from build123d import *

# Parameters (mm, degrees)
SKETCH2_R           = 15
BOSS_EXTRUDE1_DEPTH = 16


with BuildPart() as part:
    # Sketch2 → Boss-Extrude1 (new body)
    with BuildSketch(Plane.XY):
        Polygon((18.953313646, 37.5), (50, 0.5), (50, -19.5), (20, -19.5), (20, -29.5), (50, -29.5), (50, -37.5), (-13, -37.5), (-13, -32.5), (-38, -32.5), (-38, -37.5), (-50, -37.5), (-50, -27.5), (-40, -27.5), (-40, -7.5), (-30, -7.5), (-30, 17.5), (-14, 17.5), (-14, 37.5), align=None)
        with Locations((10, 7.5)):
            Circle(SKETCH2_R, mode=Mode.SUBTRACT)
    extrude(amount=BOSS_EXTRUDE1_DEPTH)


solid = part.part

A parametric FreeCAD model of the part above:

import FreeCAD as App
import Part
import Sketcher
from FreeCAD import Vector
Q = App.Units.Quantity


def add_polygon(sketch, points):
    """Adds a closed chain of lines whose ends are joined by coincident constraints."""
    first, n = sketch.GeometryCount, len(points)
    for a, b in zip(points, points[1:] + points[:1]):
        sketch.addGeometry(Part.LineSegment(App.Vector(*a, 0), App.Vector(*b, 0)), False)
    for i in range(n):
        sketch.addConstraint(Sketcher.Constraint("Coincident", first + i, 2, first + (i + 1) % n, 1))

doc = App.newDocument("Part")
body = doc.addObject("PartDesign::Body", "Body")

sketch1 = body.newObject("Sketcher::SketchObject", "Sketch")
sketch1.AttachmentSupport = (doc.getObject("XY_Plane"), [""])
sketch1.MapMode = "FlatFace"
add_polygon(sketch1, [(50, 0), (19, 38), (-14, 38), (-14, 18), (-30, 18), (-30, -8), (-40, -8), (-40, -28), (-50, -28), (-50, -38), (-38, -38), (-38, -32), (-13, -32), (-13, -38), (50, -38), (50, -30), (20, -30), (20, -20), (50, -20)])
sketch1.addGeometry(Part.Circle(Vector(10, 8, 0), Vector(0, 0, 1), 15), False)
sketch1.addConstraint([
    Sketcher.Constraint("Horizontal", 1),
    Sketcher.Constraint("Vertical", 2),
    Sketcher.Constraint("Horizontal", 3),
    Sketcher.Constraint("Vertical", 4),
    Sketcher.Constraint("Horizontal", 5),
    Sketcher.Constraint("Vertical", 6),
    Sketcher.Constraint("Horizontal", 7),
    Sketcher.Constraint("Vertical", 8),
    Sketcher.Constraint("Horizontal", 9),
    Sketcher.Constraint("Vertical", 10),
    Sketcher.Constraint("Horizontal", 11),
    Sketcher.Constraint("Vertical", 12),
    Sketcher.Constraint("Horizontal", 13),
    Sketcher.Constraint("Vertical", 14),
    Sketcher.Constraint("Horizontal", 15),
    Sketcher.Constraint("Vertical", 16),
    Sketcher.Constraint("Horizontal", 17),
    Sketcher.Constraint("Vertical", 18),
    Sketcher.Constraint("Symmetric", 8, 2, 13, 2, -2),
    Sketcher.Constraint("Vertical", 14, 2, 17, 2),
    Sketcher.Constraint("Equal", 5, 7),
    Sketcher.Constraint("Equal", 11, 4),
    Sketcher.Constraint("Equal", 2, 6),
    Sketcher.Constraint("Equal", 7, 8),
    Sketcher.Constraint("Equal", 8, 16),
    Sketcher.Constraint("Equal", 6, 18),
    Sketcher.Constraint("Diameter", 19, Q("30 mm")),
    Sketcher.Constraint("DistanceX", 3, 2, 3, 1, Q("16 mm")),
    Sketcher.Constraint("DistanceX", 5, 2, 5, 1, Q("10 mm")),
    Sketcher.Constraint("DistanceX", 9, 1, 9, 2, Q("12 mm")),
    Sketcher.Constraint("DistanceX", 11, 1, 11, 2, Q("25 mm")),
    Sketcher.Constraint("DistanceX", 13, 1, 13, 2, Q("63 mm")),
    Sketcher.Constraint("DistanceX", 15, 2, 15, 1, Q("30 mm")),
    Sketcher.Constraint("DistanceY", 2, 2, 2, 1, Q("20 mm")),
    Sketcher.Constraint("DistanceY", 10, 1, 10, 2, Q("5 mm")),
    Sketcher.Constraint("DistanceY", 14, 1, 14, 2, Q("8 mm")),
    Sketcher.Constraint("Angle", 0, Q("130 deg")),
    Sketcher.Constraint("DistanceX", -1, 1, 19, 3, Q("10 mm")),
    Sketcher.Constraint("DistanceY", 19, 3, 0, 2, Q("30 mm")),
    Sketcher.Constraint("DistanceY", -1, 1, 19, 3, Q("7.5 mm")),
])
pad1 = body.newObject("PartDesign::Pad", "Pad")
pad1.Profile = sketch1
pad1.Length = 16

doc.recompute()
